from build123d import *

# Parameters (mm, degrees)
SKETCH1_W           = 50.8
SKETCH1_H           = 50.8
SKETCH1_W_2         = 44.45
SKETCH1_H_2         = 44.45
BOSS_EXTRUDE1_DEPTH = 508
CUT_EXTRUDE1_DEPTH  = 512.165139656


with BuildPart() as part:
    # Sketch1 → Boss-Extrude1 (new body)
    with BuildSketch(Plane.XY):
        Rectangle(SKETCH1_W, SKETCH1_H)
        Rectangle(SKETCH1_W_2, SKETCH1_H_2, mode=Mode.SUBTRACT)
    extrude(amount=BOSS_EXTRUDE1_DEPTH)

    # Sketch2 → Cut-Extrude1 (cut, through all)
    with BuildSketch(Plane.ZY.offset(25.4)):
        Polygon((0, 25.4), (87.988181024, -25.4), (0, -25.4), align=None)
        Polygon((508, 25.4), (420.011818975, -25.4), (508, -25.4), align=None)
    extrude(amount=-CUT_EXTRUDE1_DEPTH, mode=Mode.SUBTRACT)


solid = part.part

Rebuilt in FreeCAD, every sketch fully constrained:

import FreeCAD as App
import Part
import Sketcher
Q = App.Units.Quantity


def add_polygon(sketch, points):
    """Adds a closed chain of lines whose ends are joined by coincident constraints."""
    first, n = sketch.GeometryCount, len(points)
    for a, b in zip(points, points[1:] + points[:1]):
        sketch.addGeometry(Part.LineSegment(App.Vector(*a, 0), App.Vector(*b, 0)), False)
    for i in range(n):
        sketch.addConstraint(Sketcher.Constraint("Coincident", first + i, 2, first + (i + 1) % n, 1))

doc = App.newDocument("Part")
body = doc.addObject("PartDesign::Body", "Body")

sketch1 = doc.addObject("Sketcher::SketchObject", "Sketch")
body.addObject(sketch1)
sketch1.AttachmentSupport = (doc.XY_Plane, [""])
sketch1.MapMode = "FlatFace"
add_polygon(sketch1, [(-25.4, 25.4), (-25.4, -25.4), (25.4, -25.4), (25.4, 25.4)])
add_polygon(sketch1, [(22.225, -22.225), (-22.225, -22.225), (-22.225, 22.225), (22.225, 22.225)])
sketch1.addConstraint(Sketcher.Constraint("Vertical", 0))
sketch1.addConstraint(Sketcher.Constraint("Horizontal", 1))
sketch1.addConstraint(Sketcher.Constraint("Vertical", 2))
sketch1.addConstraint(Sketcher.Constraint("Horizontal", 3))
sketch1.addConstraint(Sketcher.Constraint("Horizontal", 4))
sketch1.addConstraint(Sketcher.Constraint("Vertical", 5))
sketch1.addConstraint(Sketcher.Constraint("Horizontal", 6))
sketch1.addConstraint(Sketcher.Constraint("Vertical", 7))
sketch1.addConstraint(Sketcher.Constraint("Symmetric", 0, 2, 2, 2, -1, 1))
sketch1.addConstraint(Sketcher.Constraint("Symmetric", 4, 2, 6, 2, -1, 1))
sketch1.addConstraint(Sketcher.Constraint("Equal", 3, 0))
sketch1.addConstraint(Sketcher.Constraint("Equal", 6, 5))
sketch1.addConstraint(Sketcher.Constraint("DistanceX", 1, 1, 1, 2, Q("2 in")))
sketch1.addConstraint(Sketcher.Constraint("DistanceX", 4, 2, 4, 1, Q("1.75 in")))
pad1 = doc.addObject("PartDesign::Pad", "Pad")
body.addObject(pad1)
pad1.Profile = sketch1
pad1.Length = Q("20 in")

sketch2 = doc.addObject("Sketcher::SketchObject", "Sketch001")
body.addObject(sketch2)
sketch2.AttachmentSupport = (doc.YZ_Plane, [""])
sketch2.MapMode = "FlatFace"
sketch2.AttachmentOffset = App.Placement(App.Vector(0, 0, -1 * 25.4), App.Rotation())
add_polygon(sketch2, [(-25.4, 87.988181), (25.4, 0), (-25.4, 0)])
add_polygon(sketch2, [(25.4, 508), (-25.4, 420.011819), (-25.4, 508)])
sketch2.addConstraint(Sketcher.Constraint("Horizontal", 1))
sketch2.addConstraint(Sketcher.Constraint("Vertical", 2))
sketch2.addConstraint(Sketcher.Constraint("Vertical", 4))
sketch2.addConstraint(Sketcher.Constraint("Horizontal", 5))
sketch2.addConstraint(Sketcher.Constraint("Symmetric", 0, 2, 1, 2, -1, 1))
sketch2.addConstraint(Sketcher.Constraint("Vertical", 2, 2, 3, 2))
sketch2.addConstraint(Sketcher.Constraint("Vertical", 0, 2, 5, 2))
sketch2.addConstraint(Sketcher.Constraint("Equal", 2, 4))
sketch2.addConstraint(Sketcher.Constraint("DistanceX", 1, 2, 1, 1, Q("2 in")))
sketch2.addConstraint(Sketcher.Constraint("Distance", 0, Q("4 in")))
sketch2.addConstraint(Sketcher.Constraint("DistanceY", -1, 1, 4, 2, Q("20 in")))
pocket1 = doc.addObject("PartDesign::Pocket", "Pocket")
body.addObject(pocket1)
pocket1.Profile = sketch2
pocket1.Type = "ThroughAll"
pocket1.Reversed = True

doc.recompute()
